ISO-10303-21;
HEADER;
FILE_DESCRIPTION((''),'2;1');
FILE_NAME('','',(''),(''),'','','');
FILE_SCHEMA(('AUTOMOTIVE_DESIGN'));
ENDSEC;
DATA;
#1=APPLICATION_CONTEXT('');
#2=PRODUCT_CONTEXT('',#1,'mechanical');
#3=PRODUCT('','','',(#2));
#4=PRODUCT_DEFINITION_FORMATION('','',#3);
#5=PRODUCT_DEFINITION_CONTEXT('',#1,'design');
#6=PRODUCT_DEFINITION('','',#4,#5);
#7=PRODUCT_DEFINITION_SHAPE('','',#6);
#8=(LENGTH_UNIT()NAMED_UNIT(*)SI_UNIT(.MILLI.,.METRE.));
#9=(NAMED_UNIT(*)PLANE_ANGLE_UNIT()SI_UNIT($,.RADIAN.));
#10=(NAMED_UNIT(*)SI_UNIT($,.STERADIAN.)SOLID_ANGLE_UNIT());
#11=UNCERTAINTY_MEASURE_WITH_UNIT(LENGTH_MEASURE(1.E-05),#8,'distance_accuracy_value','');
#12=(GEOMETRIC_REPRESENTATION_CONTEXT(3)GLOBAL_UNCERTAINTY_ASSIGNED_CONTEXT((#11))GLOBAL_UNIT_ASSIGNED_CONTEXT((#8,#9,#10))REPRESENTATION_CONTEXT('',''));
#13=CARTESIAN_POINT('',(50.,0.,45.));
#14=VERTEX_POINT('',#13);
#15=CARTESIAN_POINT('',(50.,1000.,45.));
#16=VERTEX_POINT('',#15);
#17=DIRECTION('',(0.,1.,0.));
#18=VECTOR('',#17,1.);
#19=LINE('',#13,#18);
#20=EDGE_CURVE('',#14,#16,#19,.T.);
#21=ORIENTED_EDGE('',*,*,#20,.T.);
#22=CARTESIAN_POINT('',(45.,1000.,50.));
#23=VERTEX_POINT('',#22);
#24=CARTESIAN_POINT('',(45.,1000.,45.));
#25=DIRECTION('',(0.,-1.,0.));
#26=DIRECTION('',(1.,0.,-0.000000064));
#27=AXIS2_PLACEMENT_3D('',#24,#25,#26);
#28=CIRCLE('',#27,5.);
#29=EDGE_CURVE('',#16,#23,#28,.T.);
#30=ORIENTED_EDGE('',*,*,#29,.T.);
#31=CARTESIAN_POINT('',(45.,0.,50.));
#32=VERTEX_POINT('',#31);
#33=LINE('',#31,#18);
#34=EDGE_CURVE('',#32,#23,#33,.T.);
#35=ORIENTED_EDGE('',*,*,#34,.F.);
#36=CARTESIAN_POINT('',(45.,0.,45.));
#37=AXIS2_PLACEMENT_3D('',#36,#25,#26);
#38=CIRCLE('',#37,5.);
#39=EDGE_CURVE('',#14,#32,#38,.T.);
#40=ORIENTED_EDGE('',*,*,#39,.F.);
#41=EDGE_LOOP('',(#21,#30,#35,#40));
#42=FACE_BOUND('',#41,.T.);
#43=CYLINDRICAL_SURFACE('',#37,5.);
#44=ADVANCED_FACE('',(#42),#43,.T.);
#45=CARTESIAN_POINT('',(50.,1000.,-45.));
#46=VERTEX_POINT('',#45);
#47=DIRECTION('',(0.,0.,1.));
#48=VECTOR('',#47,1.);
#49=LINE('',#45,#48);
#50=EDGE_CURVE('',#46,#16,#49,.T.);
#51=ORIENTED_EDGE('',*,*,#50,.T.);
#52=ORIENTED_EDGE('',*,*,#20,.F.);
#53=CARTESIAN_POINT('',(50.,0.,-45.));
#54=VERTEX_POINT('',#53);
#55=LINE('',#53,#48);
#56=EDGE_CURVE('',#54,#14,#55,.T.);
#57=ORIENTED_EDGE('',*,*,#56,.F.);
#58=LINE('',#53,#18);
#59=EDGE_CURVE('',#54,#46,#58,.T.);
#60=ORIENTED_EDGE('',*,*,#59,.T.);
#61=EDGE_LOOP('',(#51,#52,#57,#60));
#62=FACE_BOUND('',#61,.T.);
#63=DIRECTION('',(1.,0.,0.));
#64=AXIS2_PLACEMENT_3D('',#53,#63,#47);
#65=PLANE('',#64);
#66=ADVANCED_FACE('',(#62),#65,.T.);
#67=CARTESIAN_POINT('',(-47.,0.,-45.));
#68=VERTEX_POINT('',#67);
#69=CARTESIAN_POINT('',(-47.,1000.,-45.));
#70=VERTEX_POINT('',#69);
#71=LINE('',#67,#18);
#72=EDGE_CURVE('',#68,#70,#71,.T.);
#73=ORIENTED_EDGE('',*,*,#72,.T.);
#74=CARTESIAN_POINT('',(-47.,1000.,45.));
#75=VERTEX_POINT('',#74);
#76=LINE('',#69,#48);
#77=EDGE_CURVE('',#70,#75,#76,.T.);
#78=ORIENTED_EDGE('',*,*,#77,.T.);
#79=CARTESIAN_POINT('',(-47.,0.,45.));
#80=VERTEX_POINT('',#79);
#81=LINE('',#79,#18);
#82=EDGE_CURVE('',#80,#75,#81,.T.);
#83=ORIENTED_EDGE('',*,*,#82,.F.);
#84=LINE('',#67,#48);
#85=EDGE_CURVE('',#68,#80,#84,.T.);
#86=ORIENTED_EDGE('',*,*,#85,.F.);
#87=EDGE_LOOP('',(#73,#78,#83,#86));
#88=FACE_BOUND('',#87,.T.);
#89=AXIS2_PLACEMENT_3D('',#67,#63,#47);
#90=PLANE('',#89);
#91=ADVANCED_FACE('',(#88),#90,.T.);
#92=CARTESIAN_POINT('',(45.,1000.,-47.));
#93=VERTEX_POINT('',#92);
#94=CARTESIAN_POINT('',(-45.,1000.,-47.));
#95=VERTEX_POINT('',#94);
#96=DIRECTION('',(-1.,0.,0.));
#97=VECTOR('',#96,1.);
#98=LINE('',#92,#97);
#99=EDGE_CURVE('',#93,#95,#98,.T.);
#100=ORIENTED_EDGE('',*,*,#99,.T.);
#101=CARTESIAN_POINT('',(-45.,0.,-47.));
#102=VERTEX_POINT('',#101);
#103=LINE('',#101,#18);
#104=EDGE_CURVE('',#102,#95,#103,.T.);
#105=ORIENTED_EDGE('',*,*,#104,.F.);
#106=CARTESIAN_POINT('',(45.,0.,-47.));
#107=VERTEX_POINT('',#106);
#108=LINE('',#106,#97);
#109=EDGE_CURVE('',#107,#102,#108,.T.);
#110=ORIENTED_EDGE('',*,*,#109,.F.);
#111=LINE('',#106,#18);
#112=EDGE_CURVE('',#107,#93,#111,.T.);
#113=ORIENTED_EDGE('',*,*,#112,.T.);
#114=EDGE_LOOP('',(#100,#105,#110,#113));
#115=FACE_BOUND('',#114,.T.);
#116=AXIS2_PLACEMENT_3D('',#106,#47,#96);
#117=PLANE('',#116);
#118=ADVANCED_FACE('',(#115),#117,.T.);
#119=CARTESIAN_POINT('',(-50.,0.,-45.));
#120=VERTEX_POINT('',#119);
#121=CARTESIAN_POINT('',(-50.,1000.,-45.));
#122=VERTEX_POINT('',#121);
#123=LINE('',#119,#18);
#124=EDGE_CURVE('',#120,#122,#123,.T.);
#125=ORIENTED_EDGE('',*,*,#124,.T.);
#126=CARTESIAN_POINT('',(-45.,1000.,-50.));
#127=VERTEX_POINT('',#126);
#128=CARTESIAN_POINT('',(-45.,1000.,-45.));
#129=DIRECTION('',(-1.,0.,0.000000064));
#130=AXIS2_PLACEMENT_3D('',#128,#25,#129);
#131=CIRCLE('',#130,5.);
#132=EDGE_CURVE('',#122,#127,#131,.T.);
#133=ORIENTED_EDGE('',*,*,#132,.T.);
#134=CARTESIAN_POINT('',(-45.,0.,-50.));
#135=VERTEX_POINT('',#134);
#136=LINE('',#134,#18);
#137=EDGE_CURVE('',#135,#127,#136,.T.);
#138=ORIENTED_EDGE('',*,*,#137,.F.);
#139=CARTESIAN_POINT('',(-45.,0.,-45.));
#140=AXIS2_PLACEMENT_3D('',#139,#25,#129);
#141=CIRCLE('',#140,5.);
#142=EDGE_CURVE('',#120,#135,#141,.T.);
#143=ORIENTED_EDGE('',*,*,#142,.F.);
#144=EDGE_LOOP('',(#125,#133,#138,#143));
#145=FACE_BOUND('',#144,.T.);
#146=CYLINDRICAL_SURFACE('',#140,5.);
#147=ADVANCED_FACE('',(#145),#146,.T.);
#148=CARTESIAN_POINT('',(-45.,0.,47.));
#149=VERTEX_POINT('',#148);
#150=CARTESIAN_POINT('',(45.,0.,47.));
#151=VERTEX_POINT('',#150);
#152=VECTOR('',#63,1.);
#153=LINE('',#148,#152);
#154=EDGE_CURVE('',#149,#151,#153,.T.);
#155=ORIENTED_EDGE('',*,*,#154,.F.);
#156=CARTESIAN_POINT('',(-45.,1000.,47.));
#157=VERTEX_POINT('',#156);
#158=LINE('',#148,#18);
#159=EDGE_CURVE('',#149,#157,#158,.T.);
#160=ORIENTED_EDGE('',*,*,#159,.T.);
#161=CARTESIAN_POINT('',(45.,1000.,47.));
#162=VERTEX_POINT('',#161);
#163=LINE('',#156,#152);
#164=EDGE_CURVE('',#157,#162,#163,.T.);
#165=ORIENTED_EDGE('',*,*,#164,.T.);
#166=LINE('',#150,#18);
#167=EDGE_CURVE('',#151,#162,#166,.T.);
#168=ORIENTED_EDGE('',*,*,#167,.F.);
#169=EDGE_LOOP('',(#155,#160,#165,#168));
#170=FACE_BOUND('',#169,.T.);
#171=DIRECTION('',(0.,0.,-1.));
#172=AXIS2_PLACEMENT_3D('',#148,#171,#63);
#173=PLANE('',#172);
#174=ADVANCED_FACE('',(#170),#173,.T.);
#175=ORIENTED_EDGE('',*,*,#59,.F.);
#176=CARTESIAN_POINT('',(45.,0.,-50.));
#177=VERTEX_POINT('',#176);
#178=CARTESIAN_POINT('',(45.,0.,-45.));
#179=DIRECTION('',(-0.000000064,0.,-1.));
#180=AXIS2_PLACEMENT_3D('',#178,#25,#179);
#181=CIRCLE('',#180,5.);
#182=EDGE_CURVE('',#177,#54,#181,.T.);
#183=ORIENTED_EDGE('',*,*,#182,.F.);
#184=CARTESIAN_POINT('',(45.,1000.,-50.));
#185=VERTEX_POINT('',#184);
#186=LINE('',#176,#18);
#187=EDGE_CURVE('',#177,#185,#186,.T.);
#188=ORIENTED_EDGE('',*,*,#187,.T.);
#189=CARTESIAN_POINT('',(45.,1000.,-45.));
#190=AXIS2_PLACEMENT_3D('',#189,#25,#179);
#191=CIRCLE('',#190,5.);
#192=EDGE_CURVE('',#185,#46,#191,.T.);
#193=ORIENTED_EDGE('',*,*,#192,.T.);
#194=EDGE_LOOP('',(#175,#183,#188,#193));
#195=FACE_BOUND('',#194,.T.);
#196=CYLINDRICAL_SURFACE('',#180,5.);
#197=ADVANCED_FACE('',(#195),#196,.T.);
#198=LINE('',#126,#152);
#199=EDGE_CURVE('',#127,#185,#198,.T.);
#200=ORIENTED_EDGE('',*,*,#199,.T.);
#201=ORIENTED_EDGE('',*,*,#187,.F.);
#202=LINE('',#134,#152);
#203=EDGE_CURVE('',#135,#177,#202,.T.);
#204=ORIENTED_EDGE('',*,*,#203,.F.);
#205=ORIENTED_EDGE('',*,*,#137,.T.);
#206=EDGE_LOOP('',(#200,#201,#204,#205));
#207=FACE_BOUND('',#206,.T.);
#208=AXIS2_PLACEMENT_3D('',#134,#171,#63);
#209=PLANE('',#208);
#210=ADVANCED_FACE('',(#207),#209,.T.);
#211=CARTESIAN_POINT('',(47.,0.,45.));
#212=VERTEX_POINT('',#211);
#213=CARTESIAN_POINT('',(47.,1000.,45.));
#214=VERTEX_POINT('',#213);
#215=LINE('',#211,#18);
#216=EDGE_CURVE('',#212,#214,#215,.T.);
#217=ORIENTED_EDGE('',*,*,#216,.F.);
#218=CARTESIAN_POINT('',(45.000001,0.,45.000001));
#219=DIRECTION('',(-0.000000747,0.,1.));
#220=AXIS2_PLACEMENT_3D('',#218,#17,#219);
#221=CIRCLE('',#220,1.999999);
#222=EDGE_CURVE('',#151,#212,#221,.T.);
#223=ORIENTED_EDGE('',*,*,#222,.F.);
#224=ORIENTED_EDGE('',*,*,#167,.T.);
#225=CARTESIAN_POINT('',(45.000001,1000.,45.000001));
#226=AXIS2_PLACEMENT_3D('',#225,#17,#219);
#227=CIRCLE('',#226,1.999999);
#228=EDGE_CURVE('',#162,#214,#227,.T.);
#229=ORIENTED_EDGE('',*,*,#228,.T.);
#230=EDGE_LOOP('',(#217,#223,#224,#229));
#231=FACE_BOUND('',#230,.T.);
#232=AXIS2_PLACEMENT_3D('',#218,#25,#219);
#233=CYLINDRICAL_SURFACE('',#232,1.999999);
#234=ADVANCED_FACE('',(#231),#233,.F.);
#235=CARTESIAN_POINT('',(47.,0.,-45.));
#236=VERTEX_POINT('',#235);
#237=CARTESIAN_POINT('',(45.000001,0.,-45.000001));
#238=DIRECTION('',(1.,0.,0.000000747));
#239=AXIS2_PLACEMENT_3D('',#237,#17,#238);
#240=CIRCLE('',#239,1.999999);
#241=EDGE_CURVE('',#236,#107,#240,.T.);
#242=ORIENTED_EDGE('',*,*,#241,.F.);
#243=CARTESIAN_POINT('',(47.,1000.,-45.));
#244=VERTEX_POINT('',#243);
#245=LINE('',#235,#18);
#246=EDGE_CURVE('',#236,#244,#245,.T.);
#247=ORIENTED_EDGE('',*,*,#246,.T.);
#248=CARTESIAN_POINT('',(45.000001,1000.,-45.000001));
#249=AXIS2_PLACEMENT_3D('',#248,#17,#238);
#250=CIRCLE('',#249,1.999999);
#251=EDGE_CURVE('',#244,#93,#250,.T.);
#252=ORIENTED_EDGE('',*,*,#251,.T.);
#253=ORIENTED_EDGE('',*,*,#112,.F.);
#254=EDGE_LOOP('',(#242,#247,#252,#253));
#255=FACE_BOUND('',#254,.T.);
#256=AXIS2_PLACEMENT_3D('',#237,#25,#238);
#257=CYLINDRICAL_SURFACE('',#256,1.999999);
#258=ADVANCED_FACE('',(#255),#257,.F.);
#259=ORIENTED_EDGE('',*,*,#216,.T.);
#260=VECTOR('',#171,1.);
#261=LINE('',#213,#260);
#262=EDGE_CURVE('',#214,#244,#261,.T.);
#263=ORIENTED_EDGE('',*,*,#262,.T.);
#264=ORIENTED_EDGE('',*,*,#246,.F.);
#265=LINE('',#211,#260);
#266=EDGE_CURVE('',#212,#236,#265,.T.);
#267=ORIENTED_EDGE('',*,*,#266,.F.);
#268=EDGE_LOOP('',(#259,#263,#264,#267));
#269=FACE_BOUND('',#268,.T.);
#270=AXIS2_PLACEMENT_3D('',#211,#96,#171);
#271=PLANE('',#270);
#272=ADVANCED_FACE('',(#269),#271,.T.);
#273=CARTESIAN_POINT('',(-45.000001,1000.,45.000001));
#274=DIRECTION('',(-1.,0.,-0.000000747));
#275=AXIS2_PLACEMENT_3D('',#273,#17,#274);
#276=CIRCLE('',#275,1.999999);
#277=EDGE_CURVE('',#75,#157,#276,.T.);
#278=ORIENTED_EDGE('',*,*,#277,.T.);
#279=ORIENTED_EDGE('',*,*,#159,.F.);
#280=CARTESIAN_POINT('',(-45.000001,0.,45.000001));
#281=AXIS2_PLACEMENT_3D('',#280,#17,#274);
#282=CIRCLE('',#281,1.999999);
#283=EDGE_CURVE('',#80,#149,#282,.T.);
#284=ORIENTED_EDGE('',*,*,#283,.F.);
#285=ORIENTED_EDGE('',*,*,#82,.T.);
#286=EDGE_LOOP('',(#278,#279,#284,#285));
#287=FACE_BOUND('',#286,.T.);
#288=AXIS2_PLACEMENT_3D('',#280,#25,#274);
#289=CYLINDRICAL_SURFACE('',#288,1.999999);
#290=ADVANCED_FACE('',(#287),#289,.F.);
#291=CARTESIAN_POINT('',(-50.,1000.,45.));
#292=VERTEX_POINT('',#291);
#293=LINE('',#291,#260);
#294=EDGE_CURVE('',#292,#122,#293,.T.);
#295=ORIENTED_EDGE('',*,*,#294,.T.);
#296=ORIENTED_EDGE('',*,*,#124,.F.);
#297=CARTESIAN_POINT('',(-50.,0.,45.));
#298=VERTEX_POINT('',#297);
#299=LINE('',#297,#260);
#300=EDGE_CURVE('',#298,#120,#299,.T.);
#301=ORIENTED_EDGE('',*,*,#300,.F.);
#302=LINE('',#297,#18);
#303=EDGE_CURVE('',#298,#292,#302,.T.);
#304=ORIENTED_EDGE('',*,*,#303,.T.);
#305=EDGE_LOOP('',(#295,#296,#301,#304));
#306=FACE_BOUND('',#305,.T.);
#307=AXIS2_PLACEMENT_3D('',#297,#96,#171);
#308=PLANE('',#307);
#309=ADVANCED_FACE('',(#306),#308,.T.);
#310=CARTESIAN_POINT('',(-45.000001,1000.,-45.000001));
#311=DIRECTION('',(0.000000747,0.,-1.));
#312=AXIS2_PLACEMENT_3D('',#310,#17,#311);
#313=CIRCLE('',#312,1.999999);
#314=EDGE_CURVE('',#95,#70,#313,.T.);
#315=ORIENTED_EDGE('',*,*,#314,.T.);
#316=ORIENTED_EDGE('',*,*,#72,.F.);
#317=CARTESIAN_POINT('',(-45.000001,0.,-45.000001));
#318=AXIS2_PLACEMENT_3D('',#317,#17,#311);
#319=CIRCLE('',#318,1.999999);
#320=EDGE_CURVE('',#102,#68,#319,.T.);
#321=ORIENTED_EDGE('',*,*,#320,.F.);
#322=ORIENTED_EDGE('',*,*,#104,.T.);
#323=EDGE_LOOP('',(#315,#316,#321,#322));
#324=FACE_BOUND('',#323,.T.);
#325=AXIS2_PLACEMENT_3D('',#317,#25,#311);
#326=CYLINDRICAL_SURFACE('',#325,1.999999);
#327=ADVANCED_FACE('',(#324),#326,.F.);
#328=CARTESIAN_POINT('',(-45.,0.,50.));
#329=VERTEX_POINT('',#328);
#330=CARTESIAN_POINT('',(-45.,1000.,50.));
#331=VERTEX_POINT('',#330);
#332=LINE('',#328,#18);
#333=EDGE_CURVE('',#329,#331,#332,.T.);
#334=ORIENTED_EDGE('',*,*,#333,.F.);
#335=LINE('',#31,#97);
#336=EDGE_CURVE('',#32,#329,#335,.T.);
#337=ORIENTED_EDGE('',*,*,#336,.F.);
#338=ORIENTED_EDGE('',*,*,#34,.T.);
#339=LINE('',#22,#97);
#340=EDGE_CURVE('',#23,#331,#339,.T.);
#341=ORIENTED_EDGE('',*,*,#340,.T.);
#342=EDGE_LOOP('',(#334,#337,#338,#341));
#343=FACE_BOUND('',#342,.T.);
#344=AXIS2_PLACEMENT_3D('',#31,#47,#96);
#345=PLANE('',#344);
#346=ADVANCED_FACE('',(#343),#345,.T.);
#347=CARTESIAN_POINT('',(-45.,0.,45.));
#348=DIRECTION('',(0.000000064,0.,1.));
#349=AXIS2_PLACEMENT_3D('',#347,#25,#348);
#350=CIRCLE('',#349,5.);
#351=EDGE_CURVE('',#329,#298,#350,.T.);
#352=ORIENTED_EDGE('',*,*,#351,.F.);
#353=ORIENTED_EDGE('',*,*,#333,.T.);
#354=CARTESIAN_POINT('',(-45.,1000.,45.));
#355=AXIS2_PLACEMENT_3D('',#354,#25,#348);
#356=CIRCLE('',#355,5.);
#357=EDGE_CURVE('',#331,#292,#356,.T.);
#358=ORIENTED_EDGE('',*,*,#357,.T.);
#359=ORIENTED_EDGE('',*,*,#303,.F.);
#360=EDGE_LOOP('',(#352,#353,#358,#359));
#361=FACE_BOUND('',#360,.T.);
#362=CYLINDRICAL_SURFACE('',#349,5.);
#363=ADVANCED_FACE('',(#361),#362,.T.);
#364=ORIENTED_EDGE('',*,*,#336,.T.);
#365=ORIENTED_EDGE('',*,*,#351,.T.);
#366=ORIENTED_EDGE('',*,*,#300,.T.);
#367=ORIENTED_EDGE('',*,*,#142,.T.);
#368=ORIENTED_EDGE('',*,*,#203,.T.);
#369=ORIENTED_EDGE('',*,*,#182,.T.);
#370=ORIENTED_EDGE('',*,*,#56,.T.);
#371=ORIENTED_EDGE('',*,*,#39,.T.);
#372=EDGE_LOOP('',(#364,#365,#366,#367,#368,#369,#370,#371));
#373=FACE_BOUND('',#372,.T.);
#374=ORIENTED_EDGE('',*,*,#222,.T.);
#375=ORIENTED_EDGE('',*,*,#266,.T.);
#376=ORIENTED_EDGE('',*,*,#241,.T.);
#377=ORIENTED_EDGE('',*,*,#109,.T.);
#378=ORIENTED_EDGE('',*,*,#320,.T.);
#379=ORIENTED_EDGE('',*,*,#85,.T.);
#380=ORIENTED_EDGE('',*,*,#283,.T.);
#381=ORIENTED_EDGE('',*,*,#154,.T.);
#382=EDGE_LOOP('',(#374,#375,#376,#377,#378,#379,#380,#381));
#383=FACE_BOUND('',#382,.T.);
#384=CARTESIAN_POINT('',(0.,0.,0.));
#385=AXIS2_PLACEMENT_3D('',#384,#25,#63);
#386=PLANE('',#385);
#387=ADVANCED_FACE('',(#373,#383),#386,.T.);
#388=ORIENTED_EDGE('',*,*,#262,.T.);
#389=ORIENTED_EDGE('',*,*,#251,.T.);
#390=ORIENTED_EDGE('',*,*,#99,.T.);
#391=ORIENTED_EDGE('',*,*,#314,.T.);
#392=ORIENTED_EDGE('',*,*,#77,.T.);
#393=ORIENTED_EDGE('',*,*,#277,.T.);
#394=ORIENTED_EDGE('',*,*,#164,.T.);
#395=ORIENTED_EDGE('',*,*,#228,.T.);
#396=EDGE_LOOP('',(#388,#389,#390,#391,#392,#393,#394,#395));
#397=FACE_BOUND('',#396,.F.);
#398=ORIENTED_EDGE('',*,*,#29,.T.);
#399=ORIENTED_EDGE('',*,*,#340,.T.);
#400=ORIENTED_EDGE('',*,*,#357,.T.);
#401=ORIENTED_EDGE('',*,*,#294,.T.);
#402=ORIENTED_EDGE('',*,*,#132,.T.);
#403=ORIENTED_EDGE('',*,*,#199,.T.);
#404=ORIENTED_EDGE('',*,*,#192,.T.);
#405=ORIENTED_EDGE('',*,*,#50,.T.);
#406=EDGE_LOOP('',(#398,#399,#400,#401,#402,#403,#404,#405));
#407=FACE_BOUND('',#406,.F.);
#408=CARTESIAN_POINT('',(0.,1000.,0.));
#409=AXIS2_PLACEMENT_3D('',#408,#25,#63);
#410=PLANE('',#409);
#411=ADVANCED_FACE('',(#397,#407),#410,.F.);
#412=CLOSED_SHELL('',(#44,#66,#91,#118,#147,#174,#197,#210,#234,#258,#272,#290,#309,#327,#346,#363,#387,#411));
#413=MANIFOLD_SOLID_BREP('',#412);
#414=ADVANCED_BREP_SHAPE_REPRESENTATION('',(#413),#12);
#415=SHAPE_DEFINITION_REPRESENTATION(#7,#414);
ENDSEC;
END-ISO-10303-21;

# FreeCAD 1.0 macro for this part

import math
import FreeCAD as App
import Part
import Sketcher
Q = App.Units.Quantity

doc = App.newDocument("Part")
body = doc.addObject("PartDesign::Body", "Body")

sketch1 = body.newObject("Sketcher::SketchObject", "Sketch")
sketch1.AttachmentSupport = (doc.getObject("XZ_Plane"), [""])
sketch1.MapMode = "FlatFace"
sketch1.addGeometry([
    Part.ArcOfCircle(Part.Circle(App.Vector(45, 45, 0), App.Vector(0, 0, 1), 5), math.radians(-0.000004), math.radians(90.000004)),
    Part.LineSegment(App.Vector(45, 50, 0), App.Vector(-45, 50, 0)),
    Part.ArcOfCircle(Part.Circle(App.Vector(-45, 45, 0), App.Vector(0, 0, 1), 5), math.radians(89.999996), math.radians(180.000004)),
    Part.LineSegment(App.Vector(-50, 45, 0), App.Vector(-50, -45, 0)),
    Part.ArcOfCircle(Part.Circle(App.Vector(-45, -45, 0), App.Vector(0, 0, 1), 5), math.radians(179.999996), math.radians(270.000004)),
    Part.LineSegment(App.Vector(-45, -50, 0), App.Vector(45, -50, 0)),
    Part.ArcOfCircle(Part.Circle(App.Vector(45, -45, 0), App.Vector(0, 0, 1), 5), math.radians(-90.000004), math.radians(0.000004)),
    Part.LineSegment(App.Vector(50, -45, 0), App.Vector(50, 45, 0)),
    Part.LineSegment(App.Vector(-47, -45, 0), App.Vector(-47, 45, 0)),
    Part.ArcOfCircle(Part.Circle(App.Vector(-45.000001, 45.000001, 0), App.Vector(0, 0, 1), 1.999999), math.radians(89.999957), math.radians(180.000043)),
    Part.LineSegment(App.Vector(-45, 47, 0), App.Vector(45, 47, 0)),
    Part.ArcOfCircle(Part.Circle(App.Vector(45.000001, 45.000001, 0), App.Vector(0, 0, 1), 1.999999), math.radians(-0.000043), math.radians(90.000043)),
    Part.LineSegment(App.Vector(47, 45, 0), App.Vector(47, -45, 0)),
    Part.ArcOfCircle(Part.Circle(App.Vector(45.000001, -45.000001, 0), App.Vector(0, 0, 1), 1.999999), math.radians(-90.000043), math.radians(0.000043)),
    Part.LineSegment(App.Vector(45, -47, 0), App.Vector(-45, -47, 0)),
    Part.ArcOfCircle(Part.Circle(App.Vector(-45.000001, -45.000001, 0), App.Vector(0, 0, 1), 1.999999), math.radians(179.999957), math.radians(270.000043)),
], False)
sketch1.addConstraint([
    Sketcher.Constraint("Tangent", 0, 2, 1, 1),
    Sketcher.Constraint("Tangent", 1, 2, 2, 1),
    Sketcher.Constraint("Tangent", 2, 2, 3, 1),
    Sketcher.Constraint("Tangent", 3, 2, 4, 1),
    Sketcher.Constraint("Tangent", 4, 2, 5, 1),
    Sketcher.Constraint("Tangent", 5, 2, 6, 1),
    Sketcher.Constraint("Tangent", 6, 2, 7, 1),
    Sketcher.Constraint("Tangent", 7, 2, 0, 1),
    Sketcher.Constraint("Tangent", 8, 2, 9, 2),
    Sketcher.Constraint("Tangent", 9, 1, 10, 1),
    Sketcher.Constraint("Tangent", 10, 2, 11, 2),
    Sketcher.Constraint("Tangent", 11, 1, 12, 1),
    Sketcher.Constraint("Tangent", 12, 2, 13, 2),
    Sketcher.Constraint("Tangent", 13, 1, 14, 1),
    Sketcher.Constraint("Tangent", 14, 2, 15, 2),
    Sketcher.Constraint("Tangent", 15, 1, 8, 1),
    Sketcher.Constraint("Horizontal", 1),
    Sketcher.Constraint("Vertical", 3),
    Sketcher.Constraint("Horizontal", 5),
    Sketcher.Constraint("Vertical", 7),
    Sketcher.Constraint("Vertical", 8),
    Sketcher.Constraint("Horizontal", 10),
    Sketcher.Constraint("Vertical", 12),
    Sketcher.Constraint("Horizontal", 14),
    Sketcher.Constraint("Coincident", 9, 3, 2, 3),
    Sketcher.Constraint("Coincident", 11, 3, 0, 3),
    Sketcher.Constraint("Coincident", 13, 3, 6, 3),
    Sketcher.Constraint("Equal", 0, 2),
    Sketcher.Constraint("Equal", 2, 4),
    Sketcher.Constraint("Equal", 4, 6),
    Sketcher.Constraint("Equal", 13, 15),
    Sketcher.Constraint("Symmetric", 0, 3, 4, 3, -1, 1),
    Sketcher.Constraint("Equal", 14, 3),
    Sketcher.Constraint("Radius", 0, Q("5 mm")),
    Sketcher.Constraint("Radius", 9, Q("1.999999 mm")),
    Sketcher.Constraint("DistanceX", 1, 2, 1, 1, Q("90 mm")),
])
pad1 = body.newObject("PartDesign::Pad", "Pad")
pad1.Profile = sketch1
pad1.Length = 1000
pad1.Reversed = True

doc.recompute()
